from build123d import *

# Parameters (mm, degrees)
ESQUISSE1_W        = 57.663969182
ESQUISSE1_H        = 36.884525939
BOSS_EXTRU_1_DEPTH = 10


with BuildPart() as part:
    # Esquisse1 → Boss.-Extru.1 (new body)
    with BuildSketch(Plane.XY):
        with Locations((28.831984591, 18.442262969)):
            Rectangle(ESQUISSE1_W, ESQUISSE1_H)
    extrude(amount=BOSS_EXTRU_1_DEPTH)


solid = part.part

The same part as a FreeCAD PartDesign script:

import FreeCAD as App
import Part
import Sketcher
from FreeCAD import Vector

doc = App.newDocument("Part")
body = doc.addObject("PartDesign::Body", "Body")

sketch1 = doc.addObject("Sketcher::SketchObject", "Sketch")
body.addObject(sketch1)
sketch1.AttachmentSupport = (doc.XY_Plane, [""])
sketch1.MapMode = "FlatFace"
sketch1.addGeometry([
    Part.LineSegment(Vector(0, 36.884526, 0), Vector(0, 0, 0)),
    Part.LineSegment(Vector(0, 0, 0), Vector(57.663969, 0, 0)),
    Part.LineSegment(Vector(57.663969, 0, 0), Vector(57.663969, 36.884526, 0)),
    Part.LineSegment(Vector(57.663969, 36.884526, 0), Vector(0, 36.884526, 0)),
], False)
sketch1.addConstraint([
    Sketcher.Constraint("Coincident", 0, 2, 1, 1),
    Sketcher.Constraint("Coincident", 1, 2, 2, 1),
    Sketcher.Constraint("Coincident", 2, 2, 3, 1),
    Sketcher.Constraint("Coincident", 3, 2, 0, 1),
    Sketcher.Constraint("Vertical", 0),
    Sketcher.Constraint("Horizontal", 1),
    Sketcher.Constraint("Vertical", 2),
    Sketcher.Constraint("Horizontal", 3),
    Sketcher.Constraint("Coincident", 0, 2, -1, 1),
    Sketcher.Constraint("DistanceX", 1, 1, 1, 2, 57.663969),
    Sketcher.Constraint("DistanceY", 0, 2, 0, 1, 36.884526),
])
pad1 = doc.addObject("PartDesign::Pad", "Pad")
body.addObject(pad1)
pad1.Profile = sketch1
pad1.Length = 10

doc.recompute()
